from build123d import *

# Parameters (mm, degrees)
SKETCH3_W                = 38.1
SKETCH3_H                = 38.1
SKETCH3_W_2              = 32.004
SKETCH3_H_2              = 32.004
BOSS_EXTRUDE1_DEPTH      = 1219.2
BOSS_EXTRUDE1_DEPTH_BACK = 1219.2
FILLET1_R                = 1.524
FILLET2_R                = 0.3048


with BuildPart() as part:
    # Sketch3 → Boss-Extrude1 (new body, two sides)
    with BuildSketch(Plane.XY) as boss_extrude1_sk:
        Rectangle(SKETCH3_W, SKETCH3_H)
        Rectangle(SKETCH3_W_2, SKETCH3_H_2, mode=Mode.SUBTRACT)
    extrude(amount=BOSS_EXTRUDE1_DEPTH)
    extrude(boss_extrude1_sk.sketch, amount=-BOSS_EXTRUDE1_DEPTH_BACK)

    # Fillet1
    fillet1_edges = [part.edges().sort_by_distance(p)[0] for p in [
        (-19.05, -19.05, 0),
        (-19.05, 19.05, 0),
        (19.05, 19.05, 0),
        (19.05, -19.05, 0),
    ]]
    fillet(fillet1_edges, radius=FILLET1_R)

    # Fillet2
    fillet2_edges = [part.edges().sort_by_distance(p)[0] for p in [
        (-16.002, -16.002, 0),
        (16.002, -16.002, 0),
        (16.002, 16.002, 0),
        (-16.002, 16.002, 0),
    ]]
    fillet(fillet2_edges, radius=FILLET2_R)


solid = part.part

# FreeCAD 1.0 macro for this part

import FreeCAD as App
import Part
import Sketcher
from FreeCAD import Vector
Q = App.Units.Quantity


def edges_at(feature, points):
    """Names of the edges that pass closest to the given points."""
    edges = feature.Shape.Edges
    near = lambda p: min(range(len(edges)), key=lambda i: edges[i].distToShape(Part.Vertex(*p))[0])
    return sorted({f"Edge{near(p) + 1}" for p in points})


def add_polygon(sketch, points):
    """Adds a closed chain of lines whose ends are joined by coincident constraints."""
    first, n = sketch.GeometryCount, len(points)
    for a, b in zip(points, points[1:] + points[:1]):
        sketch.addGeometry(Part.LineSegment(App.Vector(*a, 0), App.Vector(*b, 0)), False)
    for i in range(n):
        sketch.addConstraint(Sketcher.Constraint("Coincident", first + i, 2, first + (i + 1) % n, 1))

doc = App.newDocument("Part")
body = doc.addObject("PartDesign::Body", "Body")

sketch1 = body.newObject("Sketcher::SketchObject", "Sketch")
sketch1.AttachmentSupport = (doc.getObject("XY_Plane"), [""])
sketch1.MapMode = "FlatFace"
add_polygon(sketch1, [(-19, 19), (-19, -19), (19, -19), (19, 19)])
add_polygon(sketch1, [(16, -16), (-16, -16), (-16, 16), (16, 16)])
sketch1.addConstraint([
    Sketcher.Constraint("Vertical", 0),
    Sketcher.Constraint("Horizontal", 1),
    Sketcher.Constraint("Vertical", 2),
    Sketcher.Constraint("Horizontal", 3),
    Sketcher.Constraint("Horizontal", 4),
    Sketcher.Constraint("Vertical", 5),
    Sketcher.Constraint("Horizontal", 6),
    Sketcher.Constraint("Vertical", 7),
    Sketcher.Constraint("Symmetric", 0, 2, 2, 2, -1, 1),
    Sketcher.Constraint("Symmetric", 4, 2, 6, 2, -1, 1),
    Sketcher.Constraint("Equal", 3, 0),
    Sketcher.Constraint("Equal", 6, 5),
    Sketcher.Constraint("DistanceX", 1, 1, 1, 2, Q("1.5 in")),
    Sketcher.Constraint("DistanceX", 4, 2, 4, 1, Q("1.26 in")),
])
pad1 = body.newObject("PartDesign::Pad", "Pad")
pad1.Profile = sketch1
pad1.Type = "TwoLengths"
pad1.Length = Q("48 in")
pad1.Length2 = Q("48 in")
doc.recompute()

fillet = body.newObject("PartDesign::Fillet", "Fillet")
fillet.Base = (pad1, edges_at(pad1, [
    (-19.05, -19.05, 0),
    (-19.05, 19.05, 0),
    (19.05, 19.05, 0),
    (19.05, -19.05, 0),
]))
fillet.Radius = Q("0.06 in")
doc.recompute()

fillet2 = body.newObject("PartDesign::Fillet", "Fillet001")
fillet2.Base = (fillet, edges_at(fillet, [
    (-16.002, -16.002, 0),
    (16.002, -16.002, 0),
    (16.002, 16.002, 0),
    (-16.002, 16.002, 0),
]))
fillet2.Radius = Q("0.012 in")

doc.recompute()
